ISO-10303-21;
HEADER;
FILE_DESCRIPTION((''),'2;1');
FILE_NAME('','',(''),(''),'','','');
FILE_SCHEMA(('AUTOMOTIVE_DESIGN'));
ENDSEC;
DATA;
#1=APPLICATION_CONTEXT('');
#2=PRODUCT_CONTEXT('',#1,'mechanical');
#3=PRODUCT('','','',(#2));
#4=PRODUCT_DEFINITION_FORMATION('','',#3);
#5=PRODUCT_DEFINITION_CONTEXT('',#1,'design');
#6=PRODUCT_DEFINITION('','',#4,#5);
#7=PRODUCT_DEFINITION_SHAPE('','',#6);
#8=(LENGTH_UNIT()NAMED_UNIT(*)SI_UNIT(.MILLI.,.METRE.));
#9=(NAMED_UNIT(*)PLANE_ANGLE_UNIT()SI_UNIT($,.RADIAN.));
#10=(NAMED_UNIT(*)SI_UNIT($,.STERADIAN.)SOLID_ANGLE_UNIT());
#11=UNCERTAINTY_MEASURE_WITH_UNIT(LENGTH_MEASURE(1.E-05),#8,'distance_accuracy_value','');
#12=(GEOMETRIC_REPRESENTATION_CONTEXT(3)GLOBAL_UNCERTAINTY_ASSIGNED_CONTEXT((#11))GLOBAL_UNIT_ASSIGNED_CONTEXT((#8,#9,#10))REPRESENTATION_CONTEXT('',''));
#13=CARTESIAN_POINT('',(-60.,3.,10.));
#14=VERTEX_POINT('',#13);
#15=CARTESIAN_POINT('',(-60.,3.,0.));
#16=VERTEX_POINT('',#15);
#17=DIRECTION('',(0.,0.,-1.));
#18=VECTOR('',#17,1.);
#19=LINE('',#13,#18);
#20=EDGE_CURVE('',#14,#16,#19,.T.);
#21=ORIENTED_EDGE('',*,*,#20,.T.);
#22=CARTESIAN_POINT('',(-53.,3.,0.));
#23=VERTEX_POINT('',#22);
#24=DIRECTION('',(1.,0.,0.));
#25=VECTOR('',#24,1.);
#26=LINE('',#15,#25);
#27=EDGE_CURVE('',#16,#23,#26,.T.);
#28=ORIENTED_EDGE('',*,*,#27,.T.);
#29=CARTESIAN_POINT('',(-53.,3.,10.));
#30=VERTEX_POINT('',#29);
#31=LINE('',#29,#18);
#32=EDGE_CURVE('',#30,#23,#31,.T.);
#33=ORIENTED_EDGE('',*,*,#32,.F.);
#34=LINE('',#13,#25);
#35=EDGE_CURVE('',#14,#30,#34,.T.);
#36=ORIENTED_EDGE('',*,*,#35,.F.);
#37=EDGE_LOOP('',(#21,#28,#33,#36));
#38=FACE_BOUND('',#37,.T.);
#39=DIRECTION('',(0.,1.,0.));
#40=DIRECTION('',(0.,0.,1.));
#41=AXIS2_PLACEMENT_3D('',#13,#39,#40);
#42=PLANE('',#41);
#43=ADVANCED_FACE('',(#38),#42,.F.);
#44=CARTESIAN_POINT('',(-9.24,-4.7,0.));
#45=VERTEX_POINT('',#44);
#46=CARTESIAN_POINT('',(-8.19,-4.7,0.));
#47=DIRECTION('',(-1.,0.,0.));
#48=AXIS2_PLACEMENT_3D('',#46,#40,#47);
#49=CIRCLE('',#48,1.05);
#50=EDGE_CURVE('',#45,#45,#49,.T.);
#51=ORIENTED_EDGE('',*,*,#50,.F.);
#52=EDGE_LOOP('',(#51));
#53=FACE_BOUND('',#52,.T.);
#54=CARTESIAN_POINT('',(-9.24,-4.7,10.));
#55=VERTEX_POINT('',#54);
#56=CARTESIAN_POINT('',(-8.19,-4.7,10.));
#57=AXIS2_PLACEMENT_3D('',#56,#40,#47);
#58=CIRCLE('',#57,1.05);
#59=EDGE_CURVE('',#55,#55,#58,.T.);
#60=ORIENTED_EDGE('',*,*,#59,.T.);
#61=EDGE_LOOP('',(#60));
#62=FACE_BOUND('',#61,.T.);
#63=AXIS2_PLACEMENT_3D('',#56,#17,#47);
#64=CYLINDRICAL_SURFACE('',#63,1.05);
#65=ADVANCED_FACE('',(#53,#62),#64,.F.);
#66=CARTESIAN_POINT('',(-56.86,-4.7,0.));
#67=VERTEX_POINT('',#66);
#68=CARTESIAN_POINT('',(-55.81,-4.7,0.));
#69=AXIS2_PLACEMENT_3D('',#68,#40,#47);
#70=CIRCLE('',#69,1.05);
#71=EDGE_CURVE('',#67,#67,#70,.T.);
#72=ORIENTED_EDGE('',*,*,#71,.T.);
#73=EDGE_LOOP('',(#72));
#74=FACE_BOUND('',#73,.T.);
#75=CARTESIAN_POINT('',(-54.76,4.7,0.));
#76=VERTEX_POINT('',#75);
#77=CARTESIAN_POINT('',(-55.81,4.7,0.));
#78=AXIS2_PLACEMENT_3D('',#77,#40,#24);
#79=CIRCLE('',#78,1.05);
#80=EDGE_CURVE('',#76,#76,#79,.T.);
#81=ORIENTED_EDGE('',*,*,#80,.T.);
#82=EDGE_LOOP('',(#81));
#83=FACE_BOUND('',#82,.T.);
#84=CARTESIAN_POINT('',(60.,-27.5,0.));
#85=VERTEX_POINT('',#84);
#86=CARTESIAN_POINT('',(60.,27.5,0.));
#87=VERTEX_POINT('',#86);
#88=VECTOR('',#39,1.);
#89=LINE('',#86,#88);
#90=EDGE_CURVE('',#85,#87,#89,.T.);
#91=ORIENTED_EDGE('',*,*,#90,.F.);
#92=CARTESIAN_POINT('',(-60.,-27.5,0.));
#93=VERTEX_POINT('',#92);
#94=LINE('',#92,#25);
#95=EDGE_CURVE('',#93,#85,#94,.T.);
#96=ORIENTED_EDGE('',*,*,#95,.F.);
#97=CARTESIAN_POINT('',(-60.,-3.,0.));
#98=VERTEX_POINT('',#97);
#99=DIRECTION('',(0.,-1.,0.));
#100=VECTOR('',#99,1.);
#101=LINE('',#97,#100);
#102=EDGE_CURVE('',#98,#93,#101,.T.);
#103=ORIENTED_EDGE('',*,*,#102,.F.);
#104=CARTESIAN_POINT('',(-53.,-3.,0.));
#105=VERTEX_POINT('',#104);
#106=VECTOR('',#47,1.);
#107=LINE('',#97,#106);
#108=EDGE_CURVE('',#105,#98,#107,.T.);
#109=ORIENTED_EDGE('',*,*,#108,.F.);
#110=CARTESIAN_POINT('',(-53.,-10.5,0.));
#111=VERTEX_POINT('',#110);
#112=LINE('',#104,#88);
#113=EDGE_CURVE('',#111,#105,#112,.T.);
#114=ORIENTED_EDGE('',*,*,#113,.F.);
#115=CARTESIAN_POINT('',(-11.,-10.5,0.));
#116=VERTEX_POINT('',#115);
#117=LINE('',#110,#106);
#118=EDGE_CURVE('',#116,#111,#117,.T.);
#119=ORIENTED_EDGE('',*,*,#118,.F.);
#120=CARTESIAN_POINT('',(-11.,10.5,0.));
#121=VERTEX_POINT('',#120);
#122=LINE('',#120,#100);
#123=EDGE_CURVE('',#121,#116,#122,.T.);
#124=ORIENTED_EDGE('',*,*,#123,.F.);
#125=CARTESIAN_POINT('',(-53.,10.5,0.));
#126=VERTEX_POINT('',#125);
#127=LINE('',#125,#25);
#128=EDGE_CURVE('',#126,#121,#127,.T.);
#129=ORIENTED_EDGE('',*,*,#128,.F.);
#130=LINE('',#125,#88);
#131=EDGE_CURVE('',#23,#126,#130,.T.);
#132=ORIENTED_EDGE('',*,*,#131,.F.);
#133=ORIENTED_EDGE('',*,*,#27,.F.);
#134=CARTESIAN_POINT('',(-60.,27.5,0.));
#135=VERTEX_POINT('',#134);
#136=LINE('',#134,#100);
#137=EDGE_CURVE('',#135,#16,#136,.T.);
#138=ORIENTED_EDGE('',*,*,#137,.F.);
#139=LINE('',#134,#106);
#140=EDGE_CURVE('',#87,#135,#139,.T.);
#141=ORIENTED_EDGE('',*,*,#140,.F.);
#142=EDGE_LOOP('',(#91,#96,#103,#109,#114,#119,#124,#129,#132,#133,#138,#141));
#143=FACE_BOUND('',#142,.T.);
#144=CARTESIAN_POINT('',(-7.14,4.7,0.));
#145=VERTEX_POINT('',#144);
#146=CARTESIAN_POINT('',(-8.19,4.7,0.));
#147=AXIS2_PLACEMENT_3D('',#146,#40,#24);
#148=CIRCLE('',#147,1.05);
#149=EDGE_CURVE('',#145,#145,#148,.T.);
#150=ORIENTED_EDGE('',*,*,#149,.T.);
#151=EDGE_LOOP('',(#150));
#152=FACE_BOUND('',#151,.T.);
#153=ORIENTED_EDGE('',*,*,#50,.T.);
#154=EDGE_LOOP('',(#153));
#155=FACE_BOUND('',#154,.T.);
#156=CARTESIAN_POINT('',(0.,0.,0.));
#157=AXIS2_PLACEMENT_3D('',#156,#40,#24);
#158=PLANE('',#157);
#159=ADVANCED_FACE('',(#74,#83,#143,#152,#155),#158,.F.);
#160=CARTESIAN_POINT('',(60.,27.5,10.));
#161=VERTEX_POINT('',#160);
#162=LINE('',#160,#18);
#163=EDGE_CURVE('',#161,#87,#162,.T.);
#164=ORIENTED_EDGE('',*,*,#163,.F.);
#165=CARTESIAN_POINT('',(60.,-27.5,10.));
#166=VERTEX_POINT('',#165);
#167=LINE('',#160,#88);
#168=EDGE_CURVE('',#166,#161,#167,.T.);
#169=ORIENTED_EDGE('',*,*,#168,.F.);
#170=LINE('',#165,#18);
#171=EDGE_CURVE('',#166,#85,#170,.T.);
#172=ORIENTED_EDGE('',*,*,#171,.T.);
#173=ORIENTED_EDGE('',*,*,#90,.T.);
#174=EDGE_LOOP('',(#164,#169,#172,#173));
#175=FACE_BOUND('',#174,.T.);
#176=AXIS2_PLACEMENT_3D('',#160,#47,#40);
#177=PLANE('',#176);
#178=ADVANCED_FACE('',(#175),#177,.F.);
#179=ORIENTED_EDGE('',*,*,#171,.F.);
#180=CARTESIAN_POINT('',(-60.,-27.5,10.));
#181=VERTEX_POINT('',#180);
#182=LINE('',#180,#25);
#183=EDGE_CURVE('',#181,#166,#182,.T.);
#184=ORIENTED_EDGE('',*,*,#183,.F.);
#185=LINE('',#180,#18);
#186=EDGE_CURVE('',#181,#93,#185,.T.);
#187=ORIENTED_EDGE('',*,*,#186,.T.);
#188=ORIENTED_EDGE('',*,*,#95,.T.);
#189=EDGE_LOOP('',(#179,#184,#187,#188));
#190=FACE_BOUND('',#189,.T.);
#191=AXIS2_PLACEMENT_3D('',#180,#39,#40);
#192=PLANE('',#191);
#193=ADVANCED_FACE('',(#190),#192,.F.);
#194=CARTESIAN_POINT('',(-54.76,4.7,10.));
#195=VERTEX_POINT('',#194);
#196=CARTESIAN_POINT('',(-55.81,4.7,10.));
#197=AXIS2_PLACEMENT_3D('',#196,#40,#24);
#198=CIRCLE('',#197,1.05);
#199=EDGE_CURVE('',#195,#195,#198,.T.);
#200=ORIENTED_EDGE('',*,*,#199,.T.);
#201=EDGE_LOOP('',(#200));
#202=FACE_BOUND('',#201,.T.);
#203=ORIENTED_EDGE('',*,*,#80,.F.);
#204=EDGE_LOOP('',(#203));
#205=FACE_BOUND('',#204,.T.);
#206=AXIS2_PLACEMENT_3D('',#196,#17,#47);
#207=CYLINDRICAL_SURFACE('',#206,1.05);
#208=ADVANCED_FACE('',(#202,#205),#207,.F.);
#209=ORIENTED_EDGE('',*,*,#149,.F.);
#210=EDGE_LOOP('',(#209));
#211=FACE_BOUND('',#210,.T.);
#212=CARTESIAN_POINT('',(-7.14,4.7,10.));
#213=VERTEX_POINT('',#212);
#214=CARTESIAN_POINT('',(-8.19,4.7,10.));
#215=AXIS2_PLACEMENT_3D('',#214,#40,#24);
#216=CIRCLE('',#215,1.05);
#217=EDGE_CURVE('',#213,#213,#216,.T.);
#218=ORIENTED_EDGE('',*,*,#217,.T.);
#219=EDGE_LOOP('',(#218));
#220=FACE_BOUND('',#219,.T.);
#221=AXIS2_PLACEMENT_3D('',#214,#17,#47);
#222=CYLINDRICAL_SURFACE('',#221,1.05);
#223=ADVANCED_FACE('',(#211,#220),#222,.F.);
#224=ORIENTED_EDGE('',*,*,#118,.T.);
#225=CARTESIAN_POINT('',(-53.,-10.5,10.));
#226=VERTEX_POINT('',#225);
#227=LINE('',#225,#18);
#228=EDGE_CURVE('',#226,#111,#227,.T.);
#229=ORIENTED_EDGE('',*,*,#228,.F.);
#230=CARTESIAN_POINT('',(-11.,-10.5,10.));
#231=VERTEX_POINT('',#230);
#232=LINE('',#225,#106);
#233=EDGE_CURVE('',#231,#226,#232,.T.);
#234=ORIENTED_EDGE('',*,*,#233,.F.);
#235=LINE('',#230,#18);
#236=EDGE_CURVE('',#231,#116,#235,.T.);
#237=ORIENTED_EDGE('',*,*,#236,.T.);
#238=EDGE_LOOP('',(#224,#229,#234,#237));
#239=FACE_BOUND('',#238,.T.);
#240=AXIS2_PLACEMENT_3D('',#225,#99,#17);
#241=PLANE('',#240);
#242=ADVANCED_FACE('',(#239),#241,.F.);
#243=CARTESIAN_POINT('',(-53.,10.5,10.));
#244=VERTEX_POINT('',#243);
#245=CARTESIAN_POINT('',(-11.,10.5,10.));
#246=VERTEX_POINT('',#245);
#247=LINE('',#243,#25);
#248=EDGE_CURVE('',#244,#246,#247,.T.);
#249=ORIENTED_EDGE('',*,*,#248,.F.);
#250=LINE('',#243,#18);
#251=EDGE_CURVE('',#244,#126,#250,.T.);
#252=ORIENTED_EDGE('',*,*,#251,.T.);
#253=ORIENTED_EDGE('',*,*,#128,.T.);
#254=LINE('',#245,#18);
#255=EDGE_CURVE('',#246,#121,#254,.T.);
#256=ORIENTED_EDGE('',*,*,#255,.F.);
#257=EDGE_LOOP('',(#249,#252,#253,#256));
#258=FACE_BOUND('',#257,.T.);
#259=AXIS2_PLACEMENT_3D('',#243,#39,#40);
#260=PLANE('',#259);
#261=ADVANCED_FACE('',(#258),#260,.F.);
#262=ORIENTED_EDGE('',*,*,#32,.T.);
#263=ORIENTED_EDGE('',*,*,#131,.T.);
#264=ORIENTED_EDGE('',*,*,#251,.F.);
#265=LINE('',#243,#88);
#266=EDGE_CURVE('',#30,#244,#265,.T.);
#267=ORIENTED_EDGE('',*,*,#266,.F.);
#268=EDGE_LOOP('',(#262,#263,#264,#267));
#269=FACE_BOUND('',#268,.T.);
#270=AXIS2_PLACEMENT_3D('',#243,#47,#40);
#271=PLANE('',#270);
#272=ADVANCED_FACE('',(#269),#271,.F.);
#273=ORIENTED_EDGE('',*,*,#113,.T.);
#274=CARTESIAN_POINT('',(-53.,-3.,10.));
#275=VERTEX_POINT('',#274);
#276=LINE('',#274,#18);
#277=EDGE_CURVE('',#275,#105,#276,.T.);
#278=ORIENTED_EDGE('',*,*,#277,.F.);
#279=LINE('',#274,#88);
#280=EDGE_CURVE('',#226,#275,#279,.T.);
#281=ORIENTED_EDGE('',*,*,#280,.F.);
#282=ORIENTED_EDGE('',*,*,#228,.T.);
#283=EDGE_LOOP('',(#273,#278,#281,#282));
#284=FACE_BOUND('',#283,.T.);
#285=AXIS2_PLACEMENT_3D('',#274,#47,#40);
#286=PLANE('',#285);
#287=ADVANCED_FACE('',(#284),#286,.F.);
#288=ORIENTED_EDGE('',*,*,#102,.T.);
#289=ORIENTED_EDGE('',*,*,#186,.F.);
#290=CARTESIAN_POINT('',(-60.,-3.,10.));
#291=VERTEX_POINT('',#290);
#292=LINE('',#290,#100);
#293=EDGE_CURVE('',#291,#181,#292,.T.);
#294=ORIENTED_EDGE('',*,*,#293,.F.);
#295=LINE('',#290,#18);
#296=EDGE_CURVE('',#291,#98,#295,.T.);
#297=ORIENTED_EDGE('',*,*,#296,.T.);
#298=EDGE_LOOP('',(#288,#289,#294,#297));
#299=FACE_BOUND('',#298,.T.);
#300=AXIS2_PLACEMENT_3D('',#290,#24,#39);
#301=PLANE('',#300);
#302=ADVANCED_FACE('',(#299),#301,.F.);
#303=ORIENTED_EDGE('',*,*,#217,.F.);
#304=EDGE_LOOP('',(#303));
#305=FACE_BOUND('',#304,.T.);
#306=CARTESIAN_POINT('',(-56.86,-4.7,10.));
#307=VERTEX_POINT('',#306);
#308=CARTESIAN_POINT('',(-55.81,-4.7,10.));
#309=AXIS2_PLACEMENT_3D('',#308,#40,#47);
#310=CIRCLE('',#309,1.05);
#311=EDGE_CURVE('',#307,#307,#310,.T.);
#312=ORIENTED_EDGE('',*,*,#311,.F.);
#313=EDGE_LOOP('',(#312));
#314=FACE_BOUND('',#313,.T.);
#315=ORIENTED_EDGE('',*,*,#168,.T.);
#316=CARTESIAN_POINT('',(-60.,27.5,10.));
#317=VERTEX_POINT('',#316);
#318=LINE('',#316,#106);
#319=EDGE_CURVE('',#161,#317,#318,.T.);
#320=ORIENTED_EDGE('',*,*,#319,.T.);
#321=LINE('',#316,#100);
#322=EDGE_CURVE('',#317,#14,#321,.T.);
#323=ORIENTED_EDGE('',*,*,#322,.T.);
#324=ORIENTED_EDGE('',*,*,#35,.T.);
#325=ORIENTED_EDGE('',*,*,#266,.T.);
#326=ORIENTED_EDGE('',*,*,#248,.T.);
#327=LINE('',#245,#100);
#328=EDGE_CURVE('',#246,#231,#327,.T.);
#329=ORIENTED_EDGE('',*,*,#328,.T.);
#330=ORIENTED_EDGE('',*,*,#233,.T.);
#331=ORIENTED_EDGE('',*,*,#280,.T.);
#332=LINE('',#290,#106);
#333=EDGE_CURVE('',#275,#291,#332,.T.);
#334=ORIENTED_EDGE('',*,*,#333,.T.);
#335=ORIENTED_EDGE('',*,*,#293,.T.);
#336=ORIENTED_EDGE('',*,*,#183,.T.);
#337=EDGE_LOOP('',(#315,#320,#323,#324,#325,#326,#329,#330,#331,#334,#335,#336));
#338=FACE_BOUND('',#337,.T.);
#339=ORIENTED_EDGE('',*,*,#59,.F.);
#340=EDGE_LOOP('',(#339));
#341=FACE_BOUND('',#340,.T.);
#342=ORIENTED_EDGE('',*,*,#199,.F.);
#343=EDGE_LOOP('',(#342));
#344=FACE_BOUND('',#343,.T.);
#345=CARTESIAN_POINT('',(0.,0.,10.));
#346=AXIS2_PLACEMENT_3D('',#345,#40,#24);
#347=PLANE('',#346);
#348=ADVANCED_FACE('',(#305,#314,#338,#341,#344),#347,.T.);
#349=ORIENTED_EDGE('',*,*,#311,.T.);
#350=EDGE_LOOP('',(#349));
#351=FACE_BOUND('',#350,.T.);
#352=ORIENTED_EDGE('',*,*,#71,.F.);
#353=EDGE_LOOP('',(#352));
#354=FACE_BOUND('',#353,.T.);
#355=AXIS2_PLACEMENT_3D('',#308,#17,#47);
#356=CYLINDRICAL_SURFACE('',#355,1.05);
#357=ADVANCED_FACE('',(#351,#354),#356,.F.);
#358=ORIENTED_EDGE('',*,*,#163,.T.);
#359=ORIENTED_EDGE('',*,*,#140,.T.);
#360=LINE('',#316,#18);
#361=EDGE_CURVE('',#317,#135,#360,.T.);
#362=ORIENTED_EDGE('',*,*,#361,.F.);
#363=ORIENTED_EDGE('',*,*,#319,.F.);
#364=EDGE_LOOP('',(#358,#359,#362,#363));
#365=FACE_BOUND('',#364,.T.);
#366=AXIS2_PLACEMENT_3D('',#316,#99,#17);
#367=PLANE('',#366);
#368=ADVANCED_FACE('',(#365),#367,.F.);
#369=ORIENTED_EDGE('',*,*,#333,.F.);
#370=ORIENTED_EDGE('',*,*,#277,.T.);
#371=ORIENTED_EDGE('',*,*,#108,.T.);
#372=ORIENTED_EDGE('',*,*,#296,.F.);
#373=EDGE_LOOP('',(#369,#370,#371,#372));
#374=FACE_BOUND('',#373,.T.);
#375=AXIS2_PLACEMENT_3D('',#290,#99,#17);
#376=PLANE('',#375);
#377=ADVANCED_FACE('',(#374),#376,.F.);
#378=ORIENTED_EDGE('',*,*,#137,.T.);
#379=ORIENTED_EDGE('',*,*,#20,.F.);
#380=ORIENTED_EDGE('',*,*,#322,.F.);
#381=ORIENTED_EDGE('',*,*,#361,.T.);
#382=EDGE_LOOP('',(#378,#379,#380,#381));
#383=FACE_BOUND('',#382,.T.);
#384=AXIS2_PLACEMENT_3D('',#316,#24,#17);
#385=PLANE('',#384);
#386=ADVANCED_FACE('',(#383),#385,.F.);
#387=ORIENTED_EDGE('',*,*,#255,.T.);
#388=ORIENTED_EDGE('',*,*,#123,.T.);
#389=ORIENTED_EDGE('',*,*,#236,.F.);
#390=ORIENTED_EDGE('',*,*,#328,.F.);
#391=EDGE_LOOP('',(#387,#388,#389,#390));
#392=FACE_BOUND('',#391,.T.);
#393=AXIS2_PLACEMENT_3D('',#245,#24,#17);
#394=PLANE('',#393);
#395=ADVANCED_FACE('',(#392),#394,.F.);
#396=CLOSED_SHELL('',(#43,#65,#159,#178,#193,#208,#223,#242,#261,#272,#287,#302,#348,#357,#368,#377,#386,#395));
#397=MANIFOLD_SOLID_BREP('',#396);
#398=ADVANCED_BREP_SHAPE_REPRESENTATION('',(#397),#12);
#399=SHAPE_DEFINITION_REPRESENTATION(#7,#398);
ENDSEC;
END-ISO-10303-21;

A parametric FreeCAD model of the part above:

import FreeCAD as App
import Part
import Sketcher
from FreeCAD import Vector
Q = App.Units.Quantity

doc = App.newDocument("Part")
params = doc.addObject("Spreadsheet::Sheet", "Params")
for row, (alias, value) in enumerate([
    ("sketch1_diameter", "2.1 mm"),
    ("sketch1_width", "120 mm"),
    ("sketch1_width2", "7 mm"),
    ("sketch1_width3", "42 mm"),
    ("sketch1_height", "21 mm"),
    ("pad1_length", "10 mm"),
], start=1):
    params.set(f"A{row}", alias)
    params.set(f"B{row}", "=" + value)
    params.setAlias(f"B{row}", alias)

body = doc.addObject("PartDesign::Body", "Body")

# Sketch on XY plane
sketch1 = body.newObject("Sketcher::SketchObject", "Sketch")
sketch1.AttachmentSupport = (doc.getObject("XY_Plane"), [""])
sketch1.MapMode = "FlatFace"
sketch1.addGeometry(Part.LineSegment(Vector(60, 27.5, 0), Vector(-60, 27.5, 0)), False)
sketch1.addGeometry(Part.LineSegment(Vector(-60, 27.5, 0), Vector(-60, 3, 0)), False)
sketch1.addGeometry(Part.LineSegment(Vector(-60, 3, 0), Vector(-53, 3, 0)), False)
sketch1.addGeometry(Part.LineSegment(Vector(-53, 3, 0), Vector(-53, 10.5, 0)), False)
sketch1.addGeometry(Part.LineSegment(Vector(-53, 10.5, 0), Vector(-11, 10.5, 0)), False)
sketch1.addGeometry(Part.LineSegment(Vector(-11, 10.5, 0), Vector(-11, -10.5, 0)), False)
sketch1.addGeometry(Part.LineSegment(Vector(-11, -10.5, 0), Vector(-53, -10.5, 0)), False)
sketch1.addGeometry(Part.LineSegment(Vector(-53, -10.5, 0), Vector(-53, -3, 0)), False)
sketch1.addGeometry(Part.LineSegment(Vector(-53, -3, 0), Vector(-60, -3, 0)), False)
sketch1.addGeometry(Part.LineSegment(Vector(-60, -3, 0), Vector(-60, -27.5, 0)), False)
sketch1.addGeometry(Part.LineSegment(Vector(-60, -27.5, 0), Vector(60, -27.5, 0)), False)
sketch1.addGeometry(Part.LineSegment(Vector(60, -27.5, 0), Vector(60, 27.5, 0)), False)
sketch1.addGeometry(Part.Circle(Vector(-8.2, -4.7, 0), Vector(0, 0, 1), 1.1), False)
sketch1.addGeometry(Part.Circle(Vector(-55.8, -4.7, 0), Vector(0, 0, 1), 1.1), False)
sketch1.addGeometry(Part.Circle(Vector(-8.2, 4.7, 0), Vector(0, 0, 1), 1.1), False)
sketch1.addGeometry(Part.Circle(Vector(-55.8, 4.7, 0), Vector(0, 0, 1), 1.1), False)
sketch1.addConstraint(Sketcher.Constraint("Coincident", 0, 2, 1, 1))
sketch1.addConstraint(Sketcher.Constraint("Coincident", 1, 2, 2, 1))
sketch1.addConstraint(Sketcher.Constraint("Coincident", 2, 2, 3, 1))
sketch1.addConstraint(Sketcher.Constraint("Coincident", 3, 2, 4, 1))
sketch1.addConstraint(Sketcher.Constraint("Coincident", 4, 2, 5, 1))
sketch1.addConstraint(Sketcher.Constraint("Coincident", 5, 2, 6, 1))
sketch1.addConstraint(Sketcher.Constraint("Coincident", 6, 2, 7, 1))
sketch1.addConstraint(Sketcher.Constraint("Coincident", 7, 2, 8, 1))
sketch1.addConstraint(Sketcher.Constraint("Coincident", 8, 2, 9, 1))
sketch1.addConstraint(Sketcher.Constraint("Coincident", 9, 2, 10, 1))
sketch1.addConstraint(Sketcher.Constraint("Coincident", 10, 2, 11, 1))
sketch1.addConstraint(Sketcher.Constraint("Coincident", 11, 2, 0, 1))
sketch1.addConstraint(Sketcher.Constraint("Horizontal", 0))
sketch1.addConstraint(Sketcher.Constraint("Vertical", 1))
sketch1.addConstraint(Sketcher.Constraint("Horizontal", 2))
sketch1.addConstraint(Sketcher.Constraint("Vertical", 3))
sketch1.addConstraint(Sketcher.Constraint("Horizontal", 4))
sketch1.addConstraint(Sketcher.Constraint("Vertical", 5))
sketch1.addConstraint(Sketcher.Constraint("Horizontal", 6))
sketch1.addConstraint(Sketcher.Constraint("Vertical", 7))
sketch1.addConstraint(Sketcher.Constraint("Horizontal", 8))
sketch1.addConstraint(Sketcher.Constraint("Vertical", 9))
sketch1.addConstraint(Sketcher.Constraint("Horizontal", 10))
sketch1.addConstraint(Sketcher.Constraint("Vertical", 11))
sketch1.addConstraint(Sketcher.Constraint("Equal", 12, 13))
sketch1.addConstraint(Sketcher.Constraint("Equal", 13, 14))
sketch1.addConstraint(Sketcher.Constraint("Equal", 14, 15))
sketch1.addConstraint(Sketcher.Constraint("Symmetric", 0, 2, 10, 2, -1, 1))
sketch1.addConstraint(Sketcher.Constraint("Symmetric", 12, 3, 14, 3, -1))
sketch1.addConstraint(Sketcher.Constraint("Symmetric", 13, 3, 15, 3, -1))
sketch1.addConstraint(Sketcher.Constraint("Symmetric", 3, 2, 6, 2, -1))
sketch1.addConstraint(Sketcher.Constraint("Symmetric", 1, 2, 8, 2, -1))
sketch1.addConstraint(Sketcher.Constraint("Horizontal", 12, 3, 13, 3))
sketch1.addConstraint(Sketcher.Constraint("Diameter", 12, Q("2.1 mm")))
sketch1.addConstraint(Sketcher.Constraint("DistanceX", 0, 2, 0, 1, Q("120 mm")))
sketch1.addConstraint(Sketcher.Constraint("DistanceX", 2, 1, 2, 2, Q("7 mm")))
sketch1.addConstraint(Sketcher.Constraint("DistanceX", 4, 1, 4, 2, Q("42 mm")))
sketch1.addConstraint(Sketcher.Constraint("DistanceY", 5, 2, 5, 1, Q("21 mm")))
sketch1.addConstraint(Sketcher.Constraint("DistanceY", 11, 1, 11, 2, Q("55 mm")))
sketch1.addConstraint(Sketcher.Constraint("DistanceY", 1, 2, 1, 1, Q("24.5 mm")))
sketch1.addConstraint(Sketcher.Constraint("DistanceY", 12, 3, -1, 1, Q("4.7 mm")))
sketch1.addConstraint(Sketcher.Constraint("DistanceX", 12, 3, -1, 1, Q("8.19 mm")))
sketch1.addConstraint(Sketcher.Constraint("DistanceX", 13, 3, -1, 1, Q("55.81 mm")))
sketch1.setExpression("Constraints[33]", "Params.sketch1_diameter")
sketch1.setExpression("Constraints[34]", "Params.sketch1_width")
sketch1.setExpression("Constraints[35]", "Params.sketch1_width2")
sketch1.setExpression("Constraints[36]", "Params.sketch1_width3")
sketch1.setExpression("Constraints[37]", "Params.sketch1_height")
pad1 = body.newObject("PartDesign::Pad", "Pad")
pad1.Profile = sketch1
pad1.setExpression("Length", "Params.pad1_length")

doc.recompute()
